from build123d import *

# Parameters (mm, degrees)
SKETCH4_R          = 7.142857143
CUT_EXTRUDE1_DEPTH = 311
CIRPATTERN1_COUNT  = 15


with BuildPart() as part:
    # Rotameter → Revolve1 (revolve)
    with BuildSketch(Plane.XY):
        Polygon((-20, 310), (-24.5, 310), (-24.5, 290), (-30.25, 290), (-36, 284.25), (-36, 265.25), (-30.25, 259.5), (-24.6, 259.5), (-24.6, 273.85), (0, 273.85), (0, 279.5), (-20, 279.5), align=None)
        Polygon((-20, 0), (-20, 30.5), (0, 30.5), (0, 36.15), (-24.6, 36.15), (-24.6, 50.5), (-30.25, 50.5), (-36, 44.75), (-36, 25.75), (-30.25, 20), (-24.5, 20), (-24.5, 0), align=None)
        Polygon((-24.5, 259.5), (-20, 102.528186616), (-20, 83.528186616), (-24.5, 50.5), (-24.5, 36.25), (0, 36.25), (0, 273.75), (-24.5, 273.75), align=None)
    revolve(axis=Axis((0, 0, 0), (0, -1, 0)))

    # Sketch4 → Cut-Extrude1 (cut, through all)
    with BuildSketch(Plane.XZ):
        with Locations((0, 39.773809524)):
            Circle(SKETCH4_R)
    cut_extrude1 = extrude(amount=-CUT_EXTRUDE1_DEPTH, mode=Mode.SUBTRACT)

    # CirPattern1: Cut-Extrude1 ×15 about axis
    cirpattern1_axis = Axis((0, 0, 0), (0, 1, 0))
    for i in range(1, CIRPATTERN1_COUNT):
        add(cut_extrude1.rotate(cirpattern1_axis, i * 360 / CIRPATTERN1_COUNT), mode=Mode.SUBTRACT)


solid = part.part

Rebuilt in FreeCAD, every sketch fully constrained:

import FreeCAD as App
import Part
import Sketcher
from FreeCAD import Vector
Q = App.Units.Quantity


def add_polygon(sketch, points):
    """Adds a closed chain of lines whose ends are joined by coincident constraints."""
    first, n = sketch.GeometryCount, len(points)
    for a, b in zip(points, points[1:] + points[:1]):
        sketch.addGeometry(Part.LineSegment(App.Vector(*a, 0), App.Vector(*b, 0)), False)
    for i in range(n):
        sketch.addConstraint(Sketcher.Constraint("Coincident", first + i, 2, first + (i + 1) % n, 1))

doc = App.newDocument("Part")
body = doc.addObject("PartDesign::Body", "Body")
body.AllowCompound = True

# Sketch on XY plane
sketch1 = body.newObject("Sketcher::SketchObject", "Sketch")
sketch1.AttachmentSupport = (doc.getObject("XY_Plane"), [""])
sketch1.MapMode = "FlatFace"
add_polygon(sketch1, [(-20, 310), (-24.5, 310), (-24.5, 290), (-30.2, 290), (-36, 284.2), (-36, 265.2), (-30.2, 259.5), (-24.6, 259.5), (-24.6, 273.9), (0, 273.9), (0, 279.5), (-20, 279.5)])  # lines 0-11
add_polygon(sketch1, [(-20, 0), (-20, 30.5), (0, 30.5), (0, 36.1), (-24.6, 36.1), (-24.6, 50.5), (-30.2, 50.5), (-36, 44.8), (-36, 25.8), (-30.2, 20), (-24.5, 20), (-24.5, 0)])  # lines 12-23
add_polygon(sketch1, [(-24.5, 259.5), (-20, 102.5), (-20, 83.5), (-24.5, 50.5), (-24.5, 36.2), (0, 36.2), (0, 273.8), (-24.5, 273.8)])  # lines 24-31
sketch1.addConstraint([
    Sketcher.Constraint("Horizontal", 0),
    Sketcher.Constraint("Vertical", 1),
    Sketcher.Constraint("Horizontal", 2),
    Sketcher.Constraint("Vertical", 4),
    Sketcher.Constraint("Horizontal", 6),
    Sketcher.Constraint("Vertical", 7),
    Sketcher.Constraint("Horizontal", 8),
    Sketcher.Constraint("Vertical", 9),
    Sketcher.Constraint("Horizontal", 10),
    Sketcher.Constraint("Vertical", 11),
    Sketcher.Constraint("Vertical", 12),
    Sketcher.Constraint("Horizontal", 13),
    Sketcher.Constraint("Vertical", 14),
    Sketcher.Constraint("Horizontal", 15),
    Sketcher.Constraint("Vertical", 16),
    Sketcher.Constraint("Horizontal", 17),
    Sketcher.Constraint("Vertical", 19),
    Sketcher.Constraint("Horizontal", 21),
    Sketcher.Constraint("Vertical", 22),
    Sketcher.Constraint("Horizontal", 23),
    Sketcher.Constraint("Vertical", 25),
    Sketcher.Constraint("Vertical", 27),
    Sketcher.Constraint("Horizontal", 28),
    Sketcher.Constraint("Vertical", 29),
    Sketcher.Constraint("Horizontal", 30),
    Sketcher.Constraint("Vertical", 31),
    Sketcher.Constraint("PointOnObject", 8, 2, -2),
    Sketcher.Constraint("PointOnObject", 13, 2, -2),
    Sketcher.Constraint("PointOnObject", 22, 2, -1),
    Sketcher.Constraint("PointOnObject", 28, 2, -2),
    Sketcher.Constraint("Perpendicular", 3, 5),
    Sketcher.Constraint("Perpendicular", 5, 18),
    Sketcher.Constraint("Perpendicular", 18, 20),
    Sketcher.Constraint("Horizontal", 17, 2, 26, 2),
    Sketcher.Constraint("Horizontal", 6, 2, 31, 2),
    Sketcher.Constraint("Vertical", 2, 2, 5, 2),
    Sketcher.Constraint("Vertical", 11, 2, 12, 2),
    Sketcher.Constraint("Vertical", 7, 2, 15, 2),
    Sketcher.Constraint("Vertical", 5, 2, 17, 2),
    Sketcher.Constraint("Vertical", 4, 2, 18, 2),
    Sketcher.Constraint("Vertical", 17, 2, 20, 2),
    Sketcher.Constraint("Vertical", 1, 2, 21, 2),
    Sketcher.Constraint("Vertical", 23, 2, 24, 2),
    Sketcher.Constraint("Vertical", 22, 2, 26, 2),
    Sketcher.Constraint("Vertical", 27, 2, 30, 2),
    Sketcher.Constraint("Equal", 13, 1),
    Sketcher.Constraint("Equal", 17, 9),
    Sketcher.Constraint("Equal", 11, 12),
    Sketcher.Constraint("Equal", 9, 14),
    Sketcher.Constraint("Equal", 7, 16),
    Sketcher.Constraint("Equal", 4, 19),
    Sketcher.Constraint("Equal", 19, 25),
    Sketcher.Constraint("Equal", 27, 31),
    Sketcher.Constraint("Equal", 3, 5),
    Sketcher.Constraint("DistanceX", 10, 2, 10, 1, Q("20 mm")),
    Sketcher.Constraint("DistanceY", 4, 2, 4, 1, Q("19 mm")),
    Sketcher.Constraint("DistanceX", 0, 2, 0, 1, Q("4.5 mm")),
    Sketcher.Constraint("DistanceX", 8, 1, 8, 2, Q("24.6 mm")),
    Sketcher.Constraint("DistanceY", 11, 1, 11, 2, Q("30.5 mm")),
    Sketcher.Constraint("DistanceY", 29, 1, 29, 2, Q("237.5 mm")),
    Sketcher.Constraint("DistanceY", -1, 1, 0, 2, Q("310 mm")),
    Sketcher.Constraint("DistanceX", 3, 2, -1, 1, Q("36 mm")),
    Sketcher.Constraint("DistanceY", 6, 2, 9, 2, Q("20 mm")),
    Sketcher.Constraint("Distance", 24, Q("157.036302 mm")),
])
revolution = body.newObject("PartDesign::Revolution", "Revolution")
revolution.Profile = sketch1
revolution.ReferenceAxis = (sketch1, ["V_Axis"])
revolution.Angle = 360

# Sketch on XZ plane
sketch2 = body.newObject("Sketcher::SketchObject", "Sketch001")
sketch2.AttachmentSupport = (doc.getObject("XZ_Plane"), [""])
sketch2.MapMode = "FlatFace"
sketch2.addGeometry(Part.Circle(Vector(0, 40, 0), Vector(0, 0, 1), 7), False)
sketch2.addConstraint([
    Sketcher.Constraint("PointOnObject", 0, 3, -2),
    Sketcher.Constraint("Diameter", 0, Q("14.285714 mm")),
    Sketcher.Constraint("DistanceY", -1, 1, 0, 3, Q("39.77381 mm")),
])
pocket1 = body.newObject("PartDesign::Pocket", "Pocket")
pocket1.Profile = sketch2
pocket1.Type = "ThroughAll"
doc.recompute()

polarpattern = body.newObject("PartDesign::PolarPattern", "PolarPattern")
polarpattern.Originals = [pocket1]
polarpattern.Axis = (doc.getObject("Y_Axis"), [""])
polarpattern.Angle = 360
polarpattern.Occurrences = 15
body.Tip = polarpattern

doc.recompute()
